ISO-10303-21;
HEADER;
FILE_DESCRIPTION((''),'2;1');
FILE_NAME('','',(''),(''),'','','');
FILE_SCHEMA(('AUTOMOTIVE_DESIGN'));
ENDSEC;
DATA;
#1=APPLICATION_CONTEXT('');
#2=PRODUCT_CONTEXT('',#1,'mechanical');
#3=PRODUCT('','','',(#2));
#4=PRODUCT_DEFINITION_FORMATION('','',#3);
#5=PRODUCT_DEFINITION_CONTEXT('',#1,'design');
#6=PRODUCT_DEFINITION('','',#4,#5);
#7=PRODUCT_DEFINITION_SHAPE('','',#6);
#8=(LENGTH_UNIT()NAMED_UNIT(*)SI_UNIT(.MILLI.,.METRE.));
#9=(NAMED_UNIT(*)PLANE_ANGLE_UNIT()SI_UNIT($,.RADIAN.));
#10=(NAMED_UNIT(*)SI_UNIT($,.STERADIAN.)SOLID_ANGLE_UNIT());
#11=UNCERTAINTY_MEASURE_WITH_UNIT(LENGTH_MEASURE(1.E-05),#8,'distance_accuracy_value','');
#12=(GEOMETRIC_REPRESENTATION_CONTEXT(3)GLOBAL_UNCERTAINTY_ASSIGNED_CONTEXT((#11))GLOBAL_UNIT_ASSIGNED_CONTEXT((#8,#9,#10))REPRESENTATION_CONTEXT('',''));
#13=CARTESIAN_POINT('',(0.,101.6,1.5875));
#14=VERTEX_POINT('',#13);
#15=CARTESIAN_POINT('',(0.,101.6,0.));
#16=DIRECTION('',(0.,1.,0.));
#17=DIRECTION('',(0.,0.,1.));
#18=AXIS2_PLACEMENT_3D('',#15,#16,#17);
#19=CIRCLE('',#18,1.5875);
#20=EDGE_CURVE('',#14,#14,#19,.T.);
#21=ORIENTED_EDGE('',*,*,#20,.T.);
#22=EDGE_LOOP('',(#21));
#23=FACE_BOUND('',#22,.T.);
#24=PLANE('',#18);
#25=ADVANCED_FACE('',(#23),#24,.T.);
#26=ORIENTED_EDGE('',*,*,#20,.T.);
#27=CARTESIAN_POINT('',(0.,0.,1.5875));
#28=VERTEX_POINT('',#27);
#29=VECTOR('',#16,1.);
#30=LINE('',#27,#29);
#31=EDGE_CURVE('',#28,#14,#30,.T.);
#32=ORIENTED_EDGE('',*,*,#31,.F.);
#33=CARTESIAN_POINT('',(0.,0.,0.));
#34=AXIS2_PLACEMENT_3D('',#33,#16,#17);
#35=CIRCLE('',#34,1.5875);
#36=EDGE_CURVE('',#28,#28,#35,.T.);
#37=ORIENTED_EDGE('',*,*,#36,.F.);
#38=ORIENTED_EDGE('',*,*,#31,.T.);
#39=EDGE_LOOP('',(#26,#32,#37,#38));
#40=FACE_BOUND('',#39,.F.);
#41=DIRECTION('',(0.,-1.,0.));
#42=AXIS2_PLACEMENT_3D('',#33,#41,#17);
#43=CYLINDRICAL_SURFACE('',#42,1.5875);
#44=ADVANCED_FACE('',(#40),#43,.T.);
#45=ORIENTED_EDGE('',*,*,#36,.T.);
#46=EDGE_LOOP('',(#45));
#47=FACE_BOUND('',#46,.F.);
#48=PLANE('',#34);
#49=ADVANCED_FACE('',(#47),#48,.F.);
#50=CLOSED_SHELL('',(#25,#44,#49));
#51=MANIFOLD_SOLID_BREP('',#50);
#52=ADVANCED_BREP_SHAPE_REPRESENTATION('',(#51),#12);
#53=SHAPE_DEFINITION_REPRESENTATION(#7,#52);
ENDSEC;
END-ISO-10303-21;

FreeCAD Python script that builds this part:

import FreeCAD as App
import Part
import Sketcher

V = App.Vector
Q = App.Units.Quantity

doc = App.newDocument("Part")
body = doc.addObject("PartDesign::Body", "Body")

# Sketch on XZ plane
sketch1 = doc.addObject("Sketcher::SketchObject", "Sketch")
body.addObject(sketch1)
sketch1.AttachmentSupport = (doc.XZ_Plane, [""])
sketch1.MapMode = "FlatFace"
sketch1.addGeometry(Part.Circle(V(0, 0, 0), V(0, 0, 1), 1.5875), False)
sketch1.addConstraint([
    Sketcher.Constraint("Coincident", 0, 3, -1, 1),
    Sketcher.Constraint("Diameter", 0, Q("0.125 in")),
])
pad1 = doc.addObject("PartDesign::Pad", "Pad")
body.addObject(pad1)
pad1.Profile = sketch1
pad1.Length = Q("4 in")
pad1.Reversed = True

doc.recompute()
